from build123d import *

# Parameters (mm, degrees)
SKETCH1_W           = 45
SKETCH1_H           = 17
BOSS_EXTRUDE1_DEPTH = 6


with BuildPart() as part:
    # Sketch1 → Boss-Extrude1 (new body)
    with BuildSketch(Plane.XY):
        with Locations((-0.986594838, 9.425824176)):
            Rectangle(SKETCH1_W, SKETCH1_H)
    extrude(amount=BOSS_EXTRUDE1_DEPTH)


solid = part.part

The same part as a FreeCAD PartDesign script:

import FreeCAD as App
import Part
import Sketcher

V = App.Vector
Q = App.Units.Quantity

doc = App.newDocument("Part")
params = doc.addObject("Spreadsheet::Sheet", "Params")
for row, (alias, value) in enumerate([
    ("sketch1_width", "45 mm"),
    ("sketch1_height", "17 mm"),
    ("pad1_length", "6 mm"),
], start=1):
    params.set(f"A{row}", alias)
    params.set(f"B{row}", "=" + value)
    params.setAlias(f"B{row}", alias)

body = doc.addObject("PartDesign::Body", "Body")

sketch1 = body.newObject("Sketcher::SketchObject", "Sketch")
sketch1.AttachmentSupport = (doc.getObject("XY_Plane"), [""])
sketch1.MapMode = "FlatFace"
sketch1.addGeometry([
    Part.LineSegment(V(-23.486595, 17.925824, 0), V(-23.486595, 0.925824, 0)),
    Part.LineSegment(V(-23.486595, 0.925824, 0), V(21.513405, 0.925824, 0)),
    Part.LineSegment(V(21.513405, 0.925824, 0), V(21.513405, 17.925824, 0)),
    Part.LineSegment(V(21.513405, 17.925824, 0), V(-23.486595, 17.925824, 0)),
], False)
sketch1.addConstraint([
    Sketcher.Constraint("Coincident", 0, 2, 1, 1),
    Sketcher.Constraint("Coincident", 1, 2, 2, 1),
    Sketcher.Constraint("Coincident", 2, 2, 3, 1),
    Sketcher.Constraint("Coincident", 3, 2, 0, 1),
    Sketcher.Constraint("Vertical", 0),
    Sketcher.Constraint("Horizontal", 1),
    Sketcher.Constraint("Vertical", 2),
    Sketcher.Constraint("Horizontal", 3),
    Sketcher.Constraint("DistanceX", 1, 1, 1, 2, Q("45 mm")),
    Sketcher.Constraint("DistanceY", 0, 2, 0, 1, Q("17 mm")),
    Sketcher.Constraint("DistanceX", 0, 2, -1, 1, Q("23.486595 mm")),
    Sketcher.Constraint("DistanceY", -1, 1, 0, 2, Q("0.925824 mm")),
])
sketch1.setExpression("Constraints[8]", "Params.sketch1_width")
sketch1.setExpression("Constraints[9]", "Params.sketch1_height")
pad1 = body.newObject("PartDesign::Pad", "Pad")
pad1.Profile = sketch1
pad1.setExpression("Length", "Params.pad1_length")

doc.recompute()
